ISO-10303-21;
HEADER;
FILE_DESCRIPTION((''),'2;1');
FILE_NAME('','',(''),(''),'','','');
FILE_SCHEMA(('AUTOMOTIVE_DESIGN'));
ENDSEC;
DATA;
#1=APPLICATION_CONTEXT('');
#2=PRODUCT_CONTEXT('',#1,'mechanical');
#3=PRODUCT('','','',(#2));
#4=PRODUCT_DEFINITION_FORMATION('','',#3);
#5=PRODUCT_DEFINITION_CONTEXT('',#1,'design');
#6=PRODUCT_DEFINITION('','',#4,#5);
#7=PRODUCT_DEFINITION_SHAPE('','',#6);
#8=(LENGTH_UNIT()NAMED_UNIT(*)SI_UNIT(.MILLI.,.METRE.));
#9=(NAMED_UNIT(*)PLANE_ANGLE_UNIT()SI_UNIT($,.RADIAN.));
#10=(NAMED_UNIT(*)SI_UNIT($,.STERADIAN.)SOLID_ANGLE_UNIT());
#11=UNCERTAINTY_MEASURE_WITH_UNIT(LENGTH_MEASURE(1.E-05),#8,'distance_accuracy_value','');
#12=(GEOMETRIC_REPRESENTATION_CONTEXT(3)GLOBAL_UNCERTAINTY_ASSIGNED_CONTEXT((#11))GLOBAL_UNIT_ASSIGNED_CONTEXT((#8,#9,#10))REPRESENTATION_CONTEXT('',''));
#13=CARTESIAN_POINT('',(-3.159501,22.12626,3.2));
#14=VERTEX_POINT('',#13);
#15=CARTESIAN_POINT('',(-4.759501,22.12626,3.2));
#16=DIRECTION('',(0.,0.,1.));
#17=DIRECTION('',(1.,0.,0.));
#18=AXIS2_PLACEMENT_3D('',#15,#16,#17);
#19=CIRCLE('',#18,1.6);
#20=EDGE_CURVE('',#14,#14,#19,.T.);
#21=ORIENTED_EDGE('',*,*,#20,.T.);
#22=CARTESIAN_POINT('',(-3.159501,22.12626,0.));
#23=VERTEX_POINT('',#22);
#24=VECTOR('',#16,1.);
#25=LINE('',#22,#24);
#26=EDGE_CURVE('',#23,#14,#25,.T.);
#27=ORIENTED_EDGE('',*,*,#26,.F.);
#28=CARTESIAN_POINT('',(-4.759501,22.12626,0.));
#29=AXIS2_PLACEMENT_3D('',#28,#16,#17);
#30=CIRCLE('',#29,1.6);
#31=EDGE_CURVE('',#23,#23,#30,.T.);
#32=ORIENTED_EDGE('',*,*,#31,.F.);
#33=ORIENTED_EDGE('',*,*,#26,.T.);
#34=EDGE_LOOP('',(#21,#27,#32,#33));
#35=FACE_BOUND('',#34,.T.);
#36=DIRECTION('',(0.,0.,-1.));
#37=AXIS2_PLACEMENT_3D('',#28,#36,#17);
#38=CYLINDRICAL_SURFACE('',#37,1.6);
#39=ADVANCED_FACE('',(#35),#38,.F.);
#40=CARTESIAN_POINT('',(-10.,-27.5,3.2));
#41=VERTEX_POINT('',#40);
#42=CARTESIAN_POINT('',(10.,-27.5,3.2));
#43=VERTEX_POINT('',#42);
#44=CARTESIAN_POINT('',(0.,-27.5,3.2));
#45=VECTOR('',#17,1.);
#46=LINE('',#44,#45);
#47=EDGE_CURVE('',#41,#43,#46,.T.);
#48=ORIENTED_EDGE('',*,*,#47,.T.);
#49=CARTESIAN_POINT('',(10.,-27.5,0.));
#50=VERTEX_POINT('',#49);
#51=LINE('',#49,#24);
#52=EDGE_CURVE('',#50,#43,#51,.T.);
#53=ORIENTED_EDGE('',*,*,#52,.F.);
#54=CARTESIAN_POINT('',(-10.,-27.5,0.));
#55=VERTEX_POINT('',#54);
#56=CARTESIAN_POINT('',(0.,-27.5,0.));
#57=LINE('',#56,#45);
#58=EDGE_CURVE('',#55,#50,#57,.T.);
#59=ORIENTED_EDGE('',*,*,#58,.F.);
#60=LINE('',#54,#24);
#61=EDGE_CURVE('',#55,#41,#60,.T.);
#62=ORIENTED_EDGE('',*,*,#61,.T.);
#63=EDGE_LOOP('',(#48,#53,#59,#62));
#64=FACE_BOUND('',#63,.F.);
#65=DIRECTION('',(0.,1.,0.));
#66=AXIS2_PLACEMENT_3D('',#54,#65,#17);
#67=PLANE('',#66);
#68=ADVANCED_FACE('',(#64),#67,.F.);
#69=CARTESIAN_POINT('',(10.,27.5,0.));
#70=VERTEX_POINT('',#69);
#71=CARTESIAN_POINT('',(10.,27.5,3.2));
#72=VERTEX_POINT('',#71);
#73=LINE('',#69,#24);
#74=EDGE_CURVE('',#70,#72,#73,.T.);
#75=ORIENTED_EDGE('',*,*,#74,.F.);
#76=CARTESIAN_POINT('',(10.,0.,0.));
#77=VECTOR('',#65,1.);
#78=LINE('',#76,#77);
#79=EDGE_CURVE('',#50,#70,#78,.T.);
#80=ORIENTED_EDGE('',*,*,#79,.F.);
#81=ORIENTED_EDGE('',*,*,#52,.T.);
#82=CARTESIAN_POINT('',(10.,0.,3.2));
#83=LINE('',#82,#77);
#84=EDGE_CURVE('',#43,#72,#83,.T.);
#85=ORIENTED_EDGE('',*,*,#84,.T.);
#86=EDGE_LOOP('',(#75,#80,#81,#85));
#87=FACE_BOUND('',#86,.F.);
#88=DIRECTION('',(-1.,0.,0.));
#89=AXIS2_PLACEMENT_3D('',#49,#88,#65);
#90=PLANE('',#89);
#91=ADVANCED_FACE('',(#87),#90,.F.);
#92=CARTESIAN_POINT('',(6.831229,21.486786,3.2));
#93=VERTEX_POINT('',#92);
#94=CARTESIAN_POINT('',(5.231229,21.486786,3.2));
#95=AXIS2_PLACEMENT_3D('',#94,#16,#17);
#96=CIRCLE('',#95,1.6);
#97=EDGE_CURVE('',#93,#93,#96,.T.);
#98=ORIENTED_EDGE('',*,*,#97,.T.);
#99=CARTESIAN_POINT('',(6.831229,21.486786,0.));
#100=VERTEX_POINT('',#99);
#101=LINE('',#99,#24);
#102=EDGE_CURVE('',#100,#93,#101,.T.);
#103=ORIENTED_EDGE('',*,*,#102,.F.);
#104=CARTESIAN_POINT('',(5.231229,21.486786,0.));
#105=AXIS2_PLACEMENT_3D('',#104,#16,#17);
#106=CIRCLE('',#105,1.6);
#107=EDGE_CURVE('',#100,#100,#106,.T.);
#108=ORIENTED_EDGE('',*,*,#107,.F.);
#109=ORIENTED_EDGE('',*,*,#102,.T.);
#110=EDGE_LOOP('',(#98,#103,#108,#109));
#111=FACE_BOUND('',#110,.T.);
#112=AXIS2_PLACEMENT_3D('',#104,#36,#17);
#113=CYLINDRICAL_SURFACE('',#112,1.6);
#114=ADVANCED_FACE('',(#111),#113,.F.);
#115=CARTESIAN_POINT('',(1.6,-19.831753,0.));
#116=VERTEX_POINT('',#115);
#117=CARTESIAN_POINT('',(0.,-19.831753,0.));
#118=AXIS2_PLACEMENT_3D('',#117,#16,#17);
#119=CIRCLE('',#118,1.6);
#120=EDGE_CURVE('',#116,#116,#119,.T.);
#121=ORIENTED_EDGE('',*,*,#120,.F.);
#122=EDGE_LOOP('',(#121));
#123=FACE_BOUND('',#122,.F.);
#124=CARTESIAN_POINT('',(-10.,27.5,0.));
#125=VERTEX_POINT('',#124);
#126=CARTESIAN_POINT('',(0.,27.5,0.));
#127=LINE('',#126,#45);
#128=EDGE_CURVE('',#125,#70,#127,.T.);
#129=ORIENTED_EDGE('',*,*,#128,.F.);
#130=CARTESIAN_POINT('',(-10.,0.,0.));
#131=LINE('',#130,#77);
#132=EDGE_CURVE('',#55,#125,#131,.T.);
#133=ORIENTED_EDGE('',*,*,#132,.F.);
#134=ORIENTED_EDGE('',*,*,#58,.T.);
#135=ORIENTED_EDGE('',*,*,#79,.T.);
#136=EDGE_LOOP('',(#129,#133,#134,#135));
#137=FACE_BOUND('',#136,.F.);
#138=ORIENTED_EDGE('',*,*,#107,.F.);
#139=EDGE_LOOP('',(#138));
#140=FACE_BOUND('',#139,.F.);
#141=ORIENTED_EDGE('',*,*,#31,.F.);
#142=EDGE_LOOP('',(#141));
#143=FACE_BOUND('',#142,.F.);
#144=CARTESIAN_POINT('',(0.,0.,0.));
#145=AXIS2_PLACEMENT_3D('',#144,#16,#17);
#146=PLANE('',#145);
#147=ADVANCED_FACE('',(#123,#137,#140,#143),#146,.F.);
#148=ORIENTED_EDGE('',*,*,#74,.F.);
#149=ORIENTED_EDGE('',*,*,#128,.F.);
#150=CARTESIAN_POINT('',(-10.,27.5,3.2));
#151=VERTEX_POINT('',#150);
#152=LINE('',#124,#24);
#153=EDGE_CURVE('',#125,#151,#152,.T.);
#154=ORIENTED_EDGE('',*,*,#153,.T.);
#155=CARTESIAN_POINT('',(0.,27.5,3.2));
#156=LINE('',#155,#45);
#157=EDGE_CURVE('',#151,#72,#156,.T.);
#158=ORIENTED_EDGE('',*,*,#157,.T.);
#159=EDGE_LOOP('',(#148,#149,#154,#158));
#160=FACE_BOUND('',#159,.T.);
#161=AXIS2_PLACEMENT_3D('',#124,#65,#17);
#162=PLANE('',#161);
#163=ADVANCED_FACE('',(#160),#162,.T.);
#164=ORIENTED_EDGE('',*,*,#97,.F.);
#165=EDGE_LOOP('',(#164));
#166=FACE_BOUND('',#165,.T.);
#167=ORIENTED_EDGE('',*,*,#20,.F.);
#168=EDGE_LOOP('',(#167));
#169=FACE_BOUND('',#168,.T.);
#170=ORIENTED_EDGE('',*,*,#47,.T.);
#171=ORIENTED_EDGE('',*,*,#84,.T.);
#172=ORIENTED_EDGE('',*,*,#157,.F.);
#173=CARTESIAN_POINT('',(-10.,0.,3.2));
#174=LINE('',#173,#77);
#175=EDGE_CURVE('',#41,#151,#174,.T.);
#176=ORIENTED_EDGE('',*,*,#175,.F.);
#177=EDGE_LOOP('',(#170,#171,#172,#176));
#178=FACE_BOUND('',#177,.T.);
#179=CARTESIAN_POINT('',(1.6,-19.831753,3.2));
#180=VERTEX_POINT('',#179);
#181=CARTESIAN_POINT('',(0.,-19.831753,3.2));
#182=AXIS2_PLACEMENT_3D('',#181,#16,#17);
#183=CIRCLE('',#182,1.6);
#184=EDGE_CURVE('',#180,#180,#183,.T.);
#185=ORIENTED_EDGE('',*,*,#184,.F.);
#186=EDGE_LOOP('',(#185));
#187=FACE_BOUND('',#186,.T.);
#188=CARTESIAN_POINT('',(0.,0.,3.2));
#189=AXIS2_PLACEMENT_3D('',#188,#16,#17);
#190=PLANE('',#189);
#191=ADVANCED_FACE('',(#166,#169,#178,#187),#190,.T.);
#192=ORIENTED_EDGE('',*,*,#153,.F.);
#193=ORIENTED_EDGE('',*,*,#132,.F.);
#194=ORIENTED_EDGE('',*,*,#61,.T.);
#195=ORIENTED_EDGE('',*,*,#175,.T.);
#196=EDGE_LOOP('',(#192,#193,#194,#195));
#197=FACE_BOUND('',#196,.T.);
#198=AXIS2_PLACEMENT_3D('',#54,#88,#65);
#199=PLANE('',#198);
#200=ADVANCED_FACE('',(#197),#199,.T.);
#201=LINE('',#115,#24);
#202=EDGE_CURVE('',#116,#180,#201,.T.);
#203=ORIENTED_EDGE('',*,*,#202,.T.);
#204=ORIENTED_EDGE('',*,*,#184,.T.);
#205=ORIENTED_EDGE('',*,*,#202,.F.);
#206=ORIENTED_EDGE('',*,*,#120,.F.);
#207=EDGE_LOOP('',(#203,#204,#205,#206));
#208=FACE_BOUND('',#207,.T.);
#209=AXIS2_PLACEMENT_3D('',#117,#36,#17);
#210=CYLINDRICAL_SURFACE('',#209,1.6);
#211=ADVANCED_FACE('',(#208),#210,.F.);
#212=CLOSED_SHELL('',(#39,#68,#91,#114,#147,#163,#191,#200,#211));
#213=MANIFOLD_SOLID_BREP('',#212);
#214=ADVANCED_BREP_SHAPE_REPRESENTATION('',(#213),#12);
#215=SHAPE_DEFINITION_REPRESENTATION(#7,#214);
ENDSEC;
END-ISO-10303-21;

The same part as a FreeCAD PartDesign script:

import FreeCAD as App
import Part
import Sketcher

doc = App.newDocument("Part")
body = doc.addObject("PartDesign::Body", "Body")

sketch1 = body.newObject("Sketcher::SketchObject", "Sketch")
sketch1.AttachmentSupport = (doc.getObject("XY_Plane"), [""])
sketch1.MapMode = "FlatFace"
sketch1.addGeometry([
    Part.LineSegment(App.Vector(-10, 27.5, 0), App.Vector(-10, -27.5, 0)),
    Part.LineSegment(App.Vector(-10, -27.5, 0), App.Vector(10, -27.5, 0)),
    Part.LineSegment(App.Vector(10, -27.5, 0), App.Vector(10, 27.5, 0)),
    Part.LineSegment(App.Vector(10, 27.5, 0), App.Vector(-10, 27.5, 0)),
    Part.Circle(App.Vector(0, -19.8, 0), App.Vector(0, 0, 1), 1.6),
    Part.Circle(App.Vector(-4.8, 22.1, 0), App.Vector(0, 0, 1), 1.6),
    Part.Circle(App.Vector(5.2, 21.5, 0), App.Vector(0, 0, 1), 1.6),
], False)
sketch1.addConstraint([
    Sketcher.Constraint("Coincident", 0, 2, 1, 1),
    Sketcher.Constraint("Coincident", 1, 2, 2, 1),
    Sketcher.Constraint("Coincident", 2, 2, 3, 1),
    Sketcher.Constraint("Coincident", 3, 2, 0, 1),
    Sketcher.Constraint("Vertical", 0),
    Sketcher.Constraint("Horizontal", 1),
    Sketcher.Constraint("Vertical", 2),
    Sketcher.Constraint("Horizontal", 3),
    Sketcher.Constraint("Equal", 4, 5),
    Sketcher.Constraint("Equal", 5, 6),
    Sketcher.Constraint("Symmetric", 0, 2, 2, 2, -1, 1),
    Sketcher.Constraint("PointOnObject", 4, 3, -2),
    Sketcher.Constraint("Diameter", 4, 3.2),
    Sketcher.Constraint("DistanceX", 1, 1, 1, 2, 20.0),
    Sketcher.Constraint("DistanceY", 0, 2, 0, 1, 55.0),
    Sketcher.Constraint("DistanceX", 5, 3, -1, 1, 4.759501),
    Sketcher.Constraint("DistanceY", -1, 1, 5, 3, 22.12626),
    Sketcher.Constraint("DistanceX", -1, 1, 6, 3, 5.231229),
    Sketcher.Constraint("DistanceY", 4, 3, 6, 3, 41.318539),
    Sketcher.Constraint("DistanceY", 4, 3, -1, 1, 19.831753),
])
pad1 = body.newObject("PartDesign::Pad", "Pad")
pad1.Profile = sketch1
pad1.Length = 3.2

sketch2 = body.newObject("Sketcher::SketchObject", "Sketch001")
sketch2.AttachmentSupport = (doc.getObject("XY_Plane"), [""])
sketch2.MapMode = "FlatFace"
sketch2.addGeometry([
    Part.LineSegment(App.Vector(-10, 27.5, 0), App.Vector(-10, -27.5, 0)),
    Part.LineSegment(App.Vector(-10, -27.5, 0), App.Vector(10, -27.5, 0)),
    Part.LineSegment(App.Vector(10, -27.5, 0), App.Vector(10, 27.5, 0)),
    Part.LineSegment(App.Vector(10, 27.5, 0), App.Vector(-10, 27.5, 0)),
    Part.Circle(App.Vector(0, -19.8, 0), App.Vector(0, 0, 1), 1.6),
    Part.Circle(App.Vector(-4.8, 22.1, 0), App.Vector(0, 0, 1), 1.6),
    Part.Circle(App.Vector(5.2, 21.5, 0), App.Vector(0, 0, 1), 1.6),
], False)
sketch2.addConstraint([
    Sketcher.Constraint("Coincident", 0, 2, 1, 1),
    Sketcher.Constraint("Coincident", 1, 2, 2, 1),
    Sketcher.Constraint("Coincident", 2, 2, 3, 1),
    Sketcher.Constraint("Coincident", 3, 2, 0, 1),
    Sketcher.Constraint("Vertical", 0),
    Sketcher.Constraint("Horizontal", 1),
    Sketcher.Constraint("Vertical", 2),
    Sketcher.Constraint("Horizontal", 3),
    Sketcher.Constraint("Equal", 4, 5),
    Sketcher.Constraint("Equal", 5, 6),
    Sketcher.Constraint("Symmetric", 0, 2, 2, 2, -1, 1),
    Sketcher.Constraint("PointOnObject", 4, 3, -2),
    Sketcher.Constraint("Diameter", 4, 3.2),
    Sketcher.Constraint("DistanceX", 1, 1, 1, 2, 20.0),
    Sketcher.Constraint("DistanceY", 0, 2, 0, 1, 55.0),
    Sketcher.Constraint("DistanceX", 5, 3, -1, 1, 4.759501),
    Sketcher.Constraint("DistanceY", -1, 1, 5, 3, 22.12626),
    Sketcher.Constraint("DistanceX", -1, 1, 6, 3, 5.231229),
    Sketcher.Constraint("DistanceY", 4, 3, 6, 3, 41.318539),
    Sketcher.Constraint("DistanceY", 4, 3, -1, 1, 19.831753),
])
pad2 = body.newObject("PartDesign::Pad", "Pad001")
pad2.Profile = sketch2
pad2.Length = 3.2

sketch3 = body.newObject("Sketcher::SketchObject", "Sketch002")
sketch3.AttachmentSupport = (doc.getObject("XY_Plane"), [""])
sketch3.MapMode = "FlatFace"
sketch3.addGeometry([
    Part.LineSegment(App.Vector(-10, 27.5, 0), App.Vector(-10, -27.5, 0)),
    Part.LineSegment(App.Vector(-10, -27.5, 0), App.Vector(10, -27.5, 0)),
    Part.LineSegment(App.Vector(10, -27.5, 0), App.Vector(10, 27.5, 0)),
    Part.LineSegment(App.Vector(10, 27.5, 0), App.Vector(-10, 27.5, 0)),
    Part.Circle(App.Vector(0, -19.8, 0), App.Vector(0, 0, 1), 1.6),
    Part.Circle(App.Vector(-4.8, 22.1, 0), App.Vector(0, 0, 1), 1.6),
    Part.Circle(App.Vector(5.2, 21.5, 0), App.Vector(0, 0, 1), 1.6),
], False)
sketch3.addConstraint([
    Sketcher.Constraint("Coincident", 0, 2, 1, 1),
    Sketcher.Constraint("Coincident", 1, 2, 2, 1),
    Sketcher.Constraint("Coincident", 2, 2, 3, 1),
    Sketcher.Constraint("Coincident", 3, 2, 0, 1),
    Sketcher.Constraint("Vertical", 0),
    Sketcher.Constraint("Horizontal", 1),
    Sketcher.Constraint("Vertical", 2),
    Sketcher.Constraint("Horizontal", 3),
    Sketcher.Constraint("Equal", 4, 5),
    Sketcher.Constraint("Equal", 5, 6),
    Sketcher.Constraint("Symmetric", 0, 2, 2, 2, -1, 1),
    Sketcher.Constraint("PointOnObject", 4, 3, -2),
    Sketcher.Constraint("Diameter", 4, 3.2),
    Sketcher.Constraint("DistanceX", 1, 1, 1, 2, 20.0),
    Sketcher.Constraint("DistanceY", 0, 2, 0, 1, 55.0),
    Sketcher.Constraint("DistanceX", 5, 3, -1, 1, 4.759501),
    Sketcher.Constraint("DistanceY", -1, 1, 5, 3, 22.12626),
    Sketcher.Constraint("DistanceX", -1, 1, 6, 3, 5.231229),
    Sketcher.Constraint("DistanceY", 4, 3, 6, 3, 41.318539),
    Sketcher.Constraint("DistanceY", 4, 3, -1, 1, 19.831753),
])
pad3 = body.newObject("PartDesign::Pad", "Pad002")
pad3.Profile = sketch3
pad3.Length = 3.2

doc.recompute()
